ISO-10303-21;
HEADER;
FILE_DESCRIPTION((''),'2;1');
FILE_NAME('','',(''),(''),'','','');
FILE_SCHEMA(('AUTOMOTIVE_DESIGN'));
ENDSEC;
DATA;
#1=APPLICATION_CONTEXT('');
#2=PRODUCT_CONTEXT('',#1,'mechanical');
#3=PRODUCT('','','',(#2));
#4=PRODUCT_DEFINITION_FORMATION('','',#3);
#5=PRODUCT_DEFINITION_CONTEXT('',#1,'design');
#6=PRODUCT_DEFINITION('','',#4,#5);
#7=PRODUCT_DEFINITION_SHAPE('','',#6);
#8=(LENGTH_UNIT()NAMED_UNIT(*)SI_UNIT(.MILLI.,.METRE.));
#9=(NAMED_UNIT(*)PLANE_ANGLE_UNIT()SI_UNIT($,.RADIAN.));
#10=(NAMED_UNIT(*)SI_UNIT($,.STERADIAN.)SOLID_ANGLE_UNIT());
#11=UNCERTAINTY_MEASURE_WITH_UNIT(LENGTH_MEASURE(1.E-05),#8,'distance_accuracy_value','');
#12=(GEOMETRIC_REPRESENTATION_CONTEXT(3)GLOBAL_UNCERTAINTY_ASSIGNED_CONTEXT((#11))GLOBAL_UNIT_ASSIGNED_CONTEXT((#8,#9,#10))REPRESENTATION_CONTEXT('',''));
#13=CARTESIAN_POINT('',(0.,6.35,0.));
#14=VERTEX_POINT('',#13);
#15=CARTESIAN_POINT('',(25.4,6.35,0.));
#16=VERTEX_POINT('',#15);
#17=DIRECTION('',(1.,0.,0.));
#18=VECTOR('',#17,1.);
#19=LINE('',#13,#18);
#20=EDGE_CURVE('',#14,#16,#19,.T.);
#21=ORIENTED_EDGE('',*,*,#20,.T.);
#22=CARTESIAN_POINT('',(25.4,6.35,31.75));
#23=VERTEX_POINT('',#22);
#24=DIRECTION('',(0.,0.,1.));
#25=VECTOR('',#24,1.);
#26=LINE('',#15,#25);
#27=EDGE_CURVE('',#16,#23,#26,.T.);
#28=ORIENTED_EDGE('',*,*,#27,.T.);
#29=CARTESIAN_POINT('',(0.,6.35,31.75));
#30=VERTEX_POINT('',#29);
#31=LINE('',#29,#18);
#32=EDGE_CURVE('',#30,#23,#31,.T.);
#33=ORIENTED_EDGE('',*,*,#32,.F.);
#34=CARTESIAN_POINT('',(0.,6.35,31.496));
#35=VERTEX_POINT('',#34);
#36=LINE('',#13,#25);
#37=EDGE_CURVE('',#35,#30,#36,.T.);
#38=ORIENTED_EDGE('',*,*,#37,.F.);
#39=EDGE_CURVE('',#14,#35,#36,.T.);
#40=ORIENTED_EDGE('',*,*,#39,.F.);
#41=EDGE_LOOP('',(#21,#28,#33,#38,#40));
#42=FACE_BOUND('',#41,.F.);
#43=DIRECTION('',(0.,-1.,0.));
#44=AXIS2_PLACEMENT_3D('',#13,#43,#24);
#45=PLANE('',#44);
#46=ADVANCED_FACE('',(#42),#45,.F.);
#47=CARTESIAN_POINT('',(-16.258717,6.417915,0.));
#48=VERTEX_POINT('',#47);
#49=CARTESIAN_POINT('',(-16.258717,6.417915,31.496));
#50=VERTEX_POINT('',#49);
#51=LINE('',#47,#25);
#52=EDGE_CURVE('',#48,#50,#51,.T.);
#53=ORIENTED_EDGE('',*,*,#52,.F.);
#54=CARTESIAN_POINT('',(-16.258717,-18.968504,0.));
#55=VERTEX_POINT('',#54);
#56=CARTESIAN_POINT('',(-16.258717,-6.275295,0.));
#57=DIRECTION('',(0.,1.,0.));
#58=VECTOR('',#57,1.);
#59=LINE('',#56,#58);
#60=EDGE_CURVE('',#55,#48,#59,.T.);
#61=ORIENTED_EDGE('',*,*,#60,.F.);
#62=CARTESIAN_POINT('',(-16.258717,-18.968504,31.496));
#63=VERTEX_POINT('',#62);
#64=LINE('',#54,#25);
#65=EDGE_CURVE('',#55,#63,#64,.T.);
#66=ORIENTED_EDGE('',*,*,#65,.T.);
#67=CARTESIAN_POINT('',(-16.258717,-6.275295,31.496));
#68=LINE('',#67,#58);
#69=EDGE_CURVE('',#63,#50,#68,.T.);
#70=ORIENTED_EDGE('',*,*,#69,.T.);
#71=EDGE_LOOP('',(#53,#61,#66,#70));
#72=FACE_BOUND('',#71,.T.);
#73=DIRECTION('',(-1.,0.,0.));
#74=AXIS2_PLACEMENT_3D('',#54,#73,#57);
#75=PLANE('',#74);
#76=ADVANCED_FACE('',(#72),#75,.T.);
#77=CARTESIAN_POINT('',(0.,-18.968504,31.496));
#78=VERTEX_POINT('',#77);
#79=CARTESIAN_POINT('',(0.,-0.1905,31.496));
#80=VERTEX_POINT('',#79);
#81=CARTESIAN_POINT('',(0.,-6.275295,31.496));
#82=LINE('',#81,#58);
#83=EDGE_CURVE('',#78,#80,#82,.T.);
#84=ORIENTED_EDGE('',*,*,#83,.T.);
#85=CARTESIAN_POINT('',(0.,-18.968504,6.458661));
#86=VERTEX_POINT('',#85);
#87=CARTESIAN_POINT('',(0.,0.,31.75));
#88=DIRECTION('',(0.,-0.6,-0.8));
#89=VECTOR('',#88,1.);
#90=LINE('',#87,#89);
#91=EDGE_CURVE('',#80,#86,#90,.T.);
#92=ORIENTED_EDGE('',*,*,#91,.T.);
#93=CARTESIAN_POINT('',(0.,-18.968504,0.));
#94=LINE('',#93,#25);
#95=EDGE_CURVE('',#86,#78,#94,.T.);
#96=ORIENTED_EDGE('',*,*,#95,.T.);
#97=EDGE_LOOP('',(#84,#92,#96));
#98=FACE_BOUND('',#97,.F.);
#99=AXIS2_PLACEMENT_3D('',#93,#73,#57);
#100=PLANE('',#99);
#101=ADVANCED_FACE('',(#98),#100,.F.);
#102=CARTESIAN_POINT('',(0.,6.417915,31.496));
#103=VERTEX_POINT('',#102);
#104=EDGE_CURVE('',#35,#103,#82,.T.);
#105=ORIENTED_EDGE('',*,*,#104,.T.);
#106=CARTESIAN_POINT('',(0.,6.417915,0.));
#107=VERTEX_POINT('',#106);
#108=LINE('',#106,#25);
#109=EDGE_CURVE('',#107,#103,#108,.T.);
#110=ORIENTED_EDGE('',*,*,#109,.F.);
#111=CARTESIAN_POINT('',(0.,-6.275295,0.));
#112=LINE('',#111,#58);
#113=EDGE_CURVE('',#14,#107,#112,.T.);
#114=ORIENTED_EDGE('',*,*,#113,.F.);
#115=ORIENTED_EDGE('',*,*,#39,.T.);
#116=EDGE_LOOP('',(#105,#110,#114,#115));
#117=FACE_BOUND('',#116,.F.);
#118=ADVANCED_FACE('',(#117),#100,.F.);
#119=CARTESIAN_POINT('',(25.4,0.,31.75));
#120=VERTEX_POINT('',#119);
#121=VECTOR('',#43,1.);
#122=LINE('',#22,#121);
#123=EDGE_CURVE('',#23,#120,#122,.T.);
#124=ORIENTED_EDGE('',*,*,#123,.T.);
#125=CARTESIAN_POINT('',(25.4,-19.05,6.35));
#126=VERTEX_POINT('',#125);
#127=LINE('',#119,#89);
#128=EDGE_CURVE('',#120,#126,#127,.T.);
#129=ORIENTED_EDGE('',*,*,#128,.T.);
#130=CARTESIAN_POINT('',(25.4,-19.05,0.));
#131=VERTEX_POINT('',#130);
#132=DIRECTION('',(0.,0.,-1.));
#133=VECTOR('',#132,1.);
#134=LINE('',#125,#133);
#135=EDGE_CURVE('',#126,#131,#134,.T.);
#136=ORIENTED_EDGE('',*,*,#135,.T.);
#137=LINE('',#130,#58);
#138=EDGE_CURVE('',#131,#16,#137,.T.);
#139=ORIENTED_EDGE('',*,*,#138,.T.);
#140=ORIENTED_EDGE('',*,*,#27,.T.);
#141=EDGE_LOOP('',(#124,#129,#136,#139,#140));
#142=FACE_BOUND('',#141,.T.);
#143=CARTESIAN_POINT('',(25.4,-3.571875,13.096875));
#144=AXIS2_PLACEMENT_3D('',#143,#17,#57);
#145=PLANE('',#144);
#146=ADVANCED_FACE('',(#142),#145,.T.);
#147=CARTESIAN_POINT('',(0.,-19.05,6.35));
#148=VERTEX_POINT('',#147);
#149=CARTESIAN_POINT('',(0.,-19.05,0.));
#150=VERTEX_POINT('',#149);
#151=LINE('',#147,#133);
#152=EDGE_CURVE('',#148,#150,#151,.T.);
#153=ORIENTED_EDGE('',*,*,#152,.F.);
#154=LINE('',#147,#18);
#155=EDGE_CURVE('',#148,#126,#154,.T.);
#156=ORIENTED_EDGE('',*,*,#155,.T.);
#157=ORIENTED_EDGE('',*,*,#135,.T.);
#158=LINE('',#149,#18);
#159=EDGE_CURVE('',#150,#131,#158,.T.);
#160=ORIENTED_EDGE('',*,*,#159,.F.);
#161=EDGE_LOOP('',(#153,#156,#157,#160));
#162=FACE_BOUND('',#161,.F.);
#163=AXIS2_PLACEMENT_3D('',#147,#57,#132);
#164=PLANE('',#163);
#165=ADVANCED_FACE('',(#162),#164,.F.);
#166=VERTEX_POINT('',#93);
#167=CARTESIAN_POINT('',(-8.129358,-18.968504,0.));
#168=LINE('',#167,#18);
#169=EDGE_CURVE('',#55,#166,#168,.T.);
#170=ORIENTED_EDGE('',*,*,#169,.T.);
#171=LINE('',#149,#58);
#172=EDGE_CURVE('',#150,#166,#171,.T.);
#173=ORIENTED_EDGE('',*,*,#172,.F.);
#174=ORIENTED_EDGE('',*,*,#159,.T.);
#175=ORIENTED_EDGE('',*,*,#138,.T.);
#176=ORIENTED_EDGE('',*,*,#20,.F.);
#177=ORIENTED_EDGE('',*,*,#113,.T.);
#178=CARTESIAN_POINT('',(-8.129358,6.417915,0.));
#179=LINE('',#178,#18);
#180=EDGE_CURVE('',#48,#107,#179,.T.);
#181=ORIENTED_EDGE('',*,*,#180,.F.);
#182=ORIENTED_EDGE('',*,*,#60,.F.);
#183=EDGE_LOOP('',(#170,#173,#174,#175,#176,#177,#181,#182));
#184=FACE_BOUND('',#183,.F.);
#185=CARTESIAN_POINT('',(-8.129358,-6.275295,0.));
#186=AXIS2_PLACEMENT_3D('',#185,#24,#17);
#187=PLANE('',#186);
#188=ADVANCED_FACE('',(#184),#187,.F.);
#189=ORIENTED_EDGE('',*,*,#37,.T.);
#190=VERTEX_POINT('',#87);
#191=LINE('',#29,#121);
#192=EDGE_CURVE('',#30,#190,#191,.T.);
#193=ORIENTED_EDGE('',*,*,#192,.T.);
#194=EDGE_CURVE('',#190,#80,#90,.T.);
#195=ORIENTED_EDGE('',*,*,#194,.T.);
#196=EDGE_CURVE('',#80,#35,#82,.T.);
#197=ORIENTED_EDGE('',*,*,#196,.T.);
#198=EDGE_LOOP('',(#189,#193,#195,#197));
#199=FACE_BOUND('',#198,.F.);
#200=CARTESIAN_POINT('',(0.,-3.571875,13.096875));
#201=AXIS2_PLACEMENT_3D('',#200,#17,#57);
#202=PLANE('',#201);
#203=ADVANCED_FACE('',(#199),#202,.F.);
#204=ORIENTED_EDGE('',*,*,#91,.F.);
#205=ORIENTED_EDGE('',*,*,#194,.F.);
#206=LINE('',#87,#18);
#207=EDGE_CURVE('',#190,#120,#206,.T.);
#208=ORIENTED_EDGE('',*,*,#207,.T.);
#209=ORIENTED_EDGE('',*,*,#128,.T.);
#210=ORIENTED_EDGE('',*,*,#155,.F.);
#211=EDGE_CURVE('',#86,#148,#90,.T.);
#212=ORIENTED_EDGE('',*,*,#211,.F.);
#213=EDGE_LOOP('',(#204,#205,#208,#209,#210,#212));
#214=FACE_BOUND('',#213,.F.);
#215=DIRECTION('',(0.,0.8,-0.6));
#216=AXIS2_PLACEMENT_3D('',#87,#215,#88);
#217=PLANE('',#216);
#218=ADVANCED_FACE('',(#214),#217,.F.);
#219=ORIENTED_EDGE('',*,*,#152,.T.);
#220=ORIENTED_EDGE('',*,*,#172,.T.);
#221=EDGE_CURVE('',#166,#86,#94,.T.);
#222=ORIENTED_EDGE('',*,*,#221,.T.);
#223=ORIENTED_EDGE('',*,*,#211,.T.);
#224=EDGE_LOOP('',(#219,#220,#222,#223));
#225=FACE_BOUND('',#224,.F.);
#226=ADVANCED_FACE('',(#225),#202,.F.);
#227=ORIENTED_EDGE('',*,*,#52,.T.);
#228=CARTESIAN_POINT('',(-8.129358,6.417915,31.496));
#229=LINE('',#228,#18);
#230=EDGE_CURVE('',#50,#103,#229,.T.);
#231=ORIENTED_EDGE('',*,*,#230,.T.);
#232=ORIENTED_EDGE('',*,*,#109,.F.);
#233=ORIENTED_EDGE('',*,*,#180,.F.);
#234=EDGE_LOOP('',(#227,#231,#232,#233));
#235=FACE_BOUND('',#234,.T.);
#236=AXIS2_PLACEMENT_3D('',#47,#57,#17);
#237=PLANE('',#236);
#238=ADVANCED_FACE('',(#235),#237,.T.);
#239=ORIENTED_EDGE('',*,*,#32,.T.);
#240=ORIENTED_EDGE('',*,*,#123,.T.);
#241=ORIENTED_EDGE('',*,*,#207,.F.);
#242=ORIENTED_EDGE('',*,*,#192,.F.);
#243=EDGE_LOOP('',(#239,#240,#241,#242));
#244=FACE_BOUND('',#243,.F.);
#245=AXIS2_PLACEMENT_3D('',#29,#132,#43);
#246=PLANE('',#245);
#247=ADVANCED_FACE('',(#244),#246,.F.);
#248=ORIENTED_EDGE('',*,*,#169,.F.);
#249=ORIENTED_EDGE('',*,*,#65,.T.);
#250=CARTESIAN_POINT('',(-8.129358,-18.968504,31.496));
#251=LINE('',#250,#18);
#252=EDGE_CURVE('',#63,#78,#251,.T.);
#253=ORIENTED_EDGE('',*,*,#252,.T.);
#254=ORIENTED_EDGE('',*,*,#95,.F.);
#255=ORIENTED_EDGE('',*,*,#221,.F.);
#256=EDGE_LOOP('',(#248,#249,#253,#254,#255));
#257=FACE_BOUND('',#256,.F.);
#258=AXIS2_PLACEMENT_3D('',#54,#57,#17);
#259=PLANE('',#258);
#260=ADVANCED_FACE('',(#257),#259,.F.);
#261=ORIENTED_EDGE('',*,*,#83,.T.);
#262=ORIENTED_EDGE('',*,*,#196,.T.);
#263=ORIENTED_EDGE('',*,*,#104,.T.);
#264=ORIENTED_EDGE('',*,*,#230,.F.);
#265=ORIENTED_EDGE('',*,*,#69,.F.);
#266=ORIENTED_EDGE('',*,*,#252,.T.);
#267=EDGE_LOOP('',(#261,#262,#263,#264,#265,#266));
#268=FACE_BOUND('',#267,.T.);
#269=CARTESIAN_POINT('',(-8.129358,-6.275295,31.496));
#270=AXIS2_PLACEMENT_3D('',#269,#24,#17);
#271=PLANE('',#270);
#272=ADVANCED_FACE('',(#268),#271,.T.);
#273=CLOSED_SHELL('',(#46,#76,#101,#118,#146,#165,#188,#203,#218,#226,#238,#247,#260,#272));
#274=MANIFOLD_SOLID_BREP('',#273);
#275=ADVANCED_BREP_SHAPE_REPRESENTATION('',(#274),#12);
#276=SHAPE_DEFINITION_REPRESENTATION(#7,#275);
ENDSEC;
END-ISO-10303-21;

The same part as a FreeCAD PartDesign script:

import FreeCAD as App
import Part
import Sketcher
from FreeCAD import Vector
Q = App.Units.Quantity

doc = App.newDocument("Part")
body = doc.addObject("PartDesign::Body", "Body")

# Sketch on YZ plane
sketch1 = body.newObject("Sketcher::SketchObject", "Sketch")
sketch1.AttachmentSupport = (doc.getObject("YZ_Plane"), [""])
sketch1.MapMode = "FlatFace"
sketch1.addGeometry([
    Part.LineSegment(Vector(6, 32, 0), Vector(0, 32, 0)),  # 0
    Part.LineSegment(Vector(0, 32, 0), Vector(-19, 6, 0)),  # 1
    Part.LineSegment(Vector(-19, 6, 0), Vector(-19, 0, 0)),  # 2
    Part.LineSegment(Vector(-19, 0, 0), Vector(6, 0, 0)),  # 3
    Part.LineSegment(Vector(6, 0, 0), Vector(6, 32, 0)),  # 4
], False)
sketch1.addConstraint([
    Sketcher.Constraint("Coincident", 0, 2, 1, 1),
    Sketcher.Constraint("Coincident", 1, 2, 2, 1),
    Sketcher.Constraint("Coincident", 2, 2, 3, 1),
    Sketcher.Constraint("Coincident", 3, 2, 4, 1),
    Sketcher.Constraint("Coincident", 4, 2, 0, 1),
    Sketcher.Constraint("Horizontal", 0),
    Sketcher.Constraint("Vertical", 2),
    Sketcher.Constraint("Horizontal", 3),
    Sketcher.Constraint("Vertical", 4),
    Sketcher.Constraint("PointOnObject", 0, 2, -2),
    Sketcher.Constraint("PointOnObject", 2, 2, -1),
    Sketcher.Constraint("Equal", 0, 2),
    Sketcher.Constraint("DistanceX", 3, 1, 3, 2, Q("1 in")),
    Sketcher.Constraint("DistanceY", 1, 2, 0, 2, Q("1 in")),
    Sketcher.Constraint("DistanceX", 0, 2, 0, 1, Q("0.25 in")),
])
pad1 = body.newObject("PartDesign::Pad", "Pad")
pad1.Profile = sketch1
pad1.Length = Q("1 in")

# Sketch on XY plane
sketch2 = body.newObject("Sketcher::SketchObject", "Sketch001")
sketch2.AttachmentSupport = (doc.getObject("XY_Plane"), [""])
sketch2.MapMode = "FlatFace"
sketch2.addGeometry([
    Part.LineSegment(Vector(-16, 6, 0), Vector(-16, -19, 0)),
    Part.LineSegment(Vector(-16, -19, 0), Vector(0, -19, 0)),
    Part.LineSegment(Vector(0, -19, 0), Vector(0, 6, 0)),
    Part.LineSegment(Vector(0, 6, 0), Vector(-16, 6, 0)),
], False)
sketch2.addConstraint([
    Sketcher.Constraint("Coincident", 0, 2, 1, 1),
    Sketcher.Constraint("Coincident", 1, 2, 2, 1),
    Sketcher.Constraint("Coincident", 2, 2, 3, 1),
    Sketcher.Constraint("Coincident", 3, 2, 0, 1),
    Sketcher.Constraint("Vertical", 0),
    Sketcher.Constraint("Horizontal", 1),
    Sketcher.Constraint("Vertical", 2),
    Sketcher.Constraint("Horizontal", 3),
    Sketcher.Constraint("PointOnObject", 1, 2, -2),
    Sketcher.Constraint("DistanceY", 0, 2, 0, 1, 25.386419),
    Sketcher.Constraint("DistanceX", 1, 1, 1, 2, 16.258717),
    Sketcher.Constraint("DistanceY", 0, 2, -1, 1, 18.968504),
])
pad2 = body.newObject("PartDesign::Pad", "Pad001")
pad2.Profile = sketch2
pad2.Length = Q("1.24 in")

doc.recompute()
